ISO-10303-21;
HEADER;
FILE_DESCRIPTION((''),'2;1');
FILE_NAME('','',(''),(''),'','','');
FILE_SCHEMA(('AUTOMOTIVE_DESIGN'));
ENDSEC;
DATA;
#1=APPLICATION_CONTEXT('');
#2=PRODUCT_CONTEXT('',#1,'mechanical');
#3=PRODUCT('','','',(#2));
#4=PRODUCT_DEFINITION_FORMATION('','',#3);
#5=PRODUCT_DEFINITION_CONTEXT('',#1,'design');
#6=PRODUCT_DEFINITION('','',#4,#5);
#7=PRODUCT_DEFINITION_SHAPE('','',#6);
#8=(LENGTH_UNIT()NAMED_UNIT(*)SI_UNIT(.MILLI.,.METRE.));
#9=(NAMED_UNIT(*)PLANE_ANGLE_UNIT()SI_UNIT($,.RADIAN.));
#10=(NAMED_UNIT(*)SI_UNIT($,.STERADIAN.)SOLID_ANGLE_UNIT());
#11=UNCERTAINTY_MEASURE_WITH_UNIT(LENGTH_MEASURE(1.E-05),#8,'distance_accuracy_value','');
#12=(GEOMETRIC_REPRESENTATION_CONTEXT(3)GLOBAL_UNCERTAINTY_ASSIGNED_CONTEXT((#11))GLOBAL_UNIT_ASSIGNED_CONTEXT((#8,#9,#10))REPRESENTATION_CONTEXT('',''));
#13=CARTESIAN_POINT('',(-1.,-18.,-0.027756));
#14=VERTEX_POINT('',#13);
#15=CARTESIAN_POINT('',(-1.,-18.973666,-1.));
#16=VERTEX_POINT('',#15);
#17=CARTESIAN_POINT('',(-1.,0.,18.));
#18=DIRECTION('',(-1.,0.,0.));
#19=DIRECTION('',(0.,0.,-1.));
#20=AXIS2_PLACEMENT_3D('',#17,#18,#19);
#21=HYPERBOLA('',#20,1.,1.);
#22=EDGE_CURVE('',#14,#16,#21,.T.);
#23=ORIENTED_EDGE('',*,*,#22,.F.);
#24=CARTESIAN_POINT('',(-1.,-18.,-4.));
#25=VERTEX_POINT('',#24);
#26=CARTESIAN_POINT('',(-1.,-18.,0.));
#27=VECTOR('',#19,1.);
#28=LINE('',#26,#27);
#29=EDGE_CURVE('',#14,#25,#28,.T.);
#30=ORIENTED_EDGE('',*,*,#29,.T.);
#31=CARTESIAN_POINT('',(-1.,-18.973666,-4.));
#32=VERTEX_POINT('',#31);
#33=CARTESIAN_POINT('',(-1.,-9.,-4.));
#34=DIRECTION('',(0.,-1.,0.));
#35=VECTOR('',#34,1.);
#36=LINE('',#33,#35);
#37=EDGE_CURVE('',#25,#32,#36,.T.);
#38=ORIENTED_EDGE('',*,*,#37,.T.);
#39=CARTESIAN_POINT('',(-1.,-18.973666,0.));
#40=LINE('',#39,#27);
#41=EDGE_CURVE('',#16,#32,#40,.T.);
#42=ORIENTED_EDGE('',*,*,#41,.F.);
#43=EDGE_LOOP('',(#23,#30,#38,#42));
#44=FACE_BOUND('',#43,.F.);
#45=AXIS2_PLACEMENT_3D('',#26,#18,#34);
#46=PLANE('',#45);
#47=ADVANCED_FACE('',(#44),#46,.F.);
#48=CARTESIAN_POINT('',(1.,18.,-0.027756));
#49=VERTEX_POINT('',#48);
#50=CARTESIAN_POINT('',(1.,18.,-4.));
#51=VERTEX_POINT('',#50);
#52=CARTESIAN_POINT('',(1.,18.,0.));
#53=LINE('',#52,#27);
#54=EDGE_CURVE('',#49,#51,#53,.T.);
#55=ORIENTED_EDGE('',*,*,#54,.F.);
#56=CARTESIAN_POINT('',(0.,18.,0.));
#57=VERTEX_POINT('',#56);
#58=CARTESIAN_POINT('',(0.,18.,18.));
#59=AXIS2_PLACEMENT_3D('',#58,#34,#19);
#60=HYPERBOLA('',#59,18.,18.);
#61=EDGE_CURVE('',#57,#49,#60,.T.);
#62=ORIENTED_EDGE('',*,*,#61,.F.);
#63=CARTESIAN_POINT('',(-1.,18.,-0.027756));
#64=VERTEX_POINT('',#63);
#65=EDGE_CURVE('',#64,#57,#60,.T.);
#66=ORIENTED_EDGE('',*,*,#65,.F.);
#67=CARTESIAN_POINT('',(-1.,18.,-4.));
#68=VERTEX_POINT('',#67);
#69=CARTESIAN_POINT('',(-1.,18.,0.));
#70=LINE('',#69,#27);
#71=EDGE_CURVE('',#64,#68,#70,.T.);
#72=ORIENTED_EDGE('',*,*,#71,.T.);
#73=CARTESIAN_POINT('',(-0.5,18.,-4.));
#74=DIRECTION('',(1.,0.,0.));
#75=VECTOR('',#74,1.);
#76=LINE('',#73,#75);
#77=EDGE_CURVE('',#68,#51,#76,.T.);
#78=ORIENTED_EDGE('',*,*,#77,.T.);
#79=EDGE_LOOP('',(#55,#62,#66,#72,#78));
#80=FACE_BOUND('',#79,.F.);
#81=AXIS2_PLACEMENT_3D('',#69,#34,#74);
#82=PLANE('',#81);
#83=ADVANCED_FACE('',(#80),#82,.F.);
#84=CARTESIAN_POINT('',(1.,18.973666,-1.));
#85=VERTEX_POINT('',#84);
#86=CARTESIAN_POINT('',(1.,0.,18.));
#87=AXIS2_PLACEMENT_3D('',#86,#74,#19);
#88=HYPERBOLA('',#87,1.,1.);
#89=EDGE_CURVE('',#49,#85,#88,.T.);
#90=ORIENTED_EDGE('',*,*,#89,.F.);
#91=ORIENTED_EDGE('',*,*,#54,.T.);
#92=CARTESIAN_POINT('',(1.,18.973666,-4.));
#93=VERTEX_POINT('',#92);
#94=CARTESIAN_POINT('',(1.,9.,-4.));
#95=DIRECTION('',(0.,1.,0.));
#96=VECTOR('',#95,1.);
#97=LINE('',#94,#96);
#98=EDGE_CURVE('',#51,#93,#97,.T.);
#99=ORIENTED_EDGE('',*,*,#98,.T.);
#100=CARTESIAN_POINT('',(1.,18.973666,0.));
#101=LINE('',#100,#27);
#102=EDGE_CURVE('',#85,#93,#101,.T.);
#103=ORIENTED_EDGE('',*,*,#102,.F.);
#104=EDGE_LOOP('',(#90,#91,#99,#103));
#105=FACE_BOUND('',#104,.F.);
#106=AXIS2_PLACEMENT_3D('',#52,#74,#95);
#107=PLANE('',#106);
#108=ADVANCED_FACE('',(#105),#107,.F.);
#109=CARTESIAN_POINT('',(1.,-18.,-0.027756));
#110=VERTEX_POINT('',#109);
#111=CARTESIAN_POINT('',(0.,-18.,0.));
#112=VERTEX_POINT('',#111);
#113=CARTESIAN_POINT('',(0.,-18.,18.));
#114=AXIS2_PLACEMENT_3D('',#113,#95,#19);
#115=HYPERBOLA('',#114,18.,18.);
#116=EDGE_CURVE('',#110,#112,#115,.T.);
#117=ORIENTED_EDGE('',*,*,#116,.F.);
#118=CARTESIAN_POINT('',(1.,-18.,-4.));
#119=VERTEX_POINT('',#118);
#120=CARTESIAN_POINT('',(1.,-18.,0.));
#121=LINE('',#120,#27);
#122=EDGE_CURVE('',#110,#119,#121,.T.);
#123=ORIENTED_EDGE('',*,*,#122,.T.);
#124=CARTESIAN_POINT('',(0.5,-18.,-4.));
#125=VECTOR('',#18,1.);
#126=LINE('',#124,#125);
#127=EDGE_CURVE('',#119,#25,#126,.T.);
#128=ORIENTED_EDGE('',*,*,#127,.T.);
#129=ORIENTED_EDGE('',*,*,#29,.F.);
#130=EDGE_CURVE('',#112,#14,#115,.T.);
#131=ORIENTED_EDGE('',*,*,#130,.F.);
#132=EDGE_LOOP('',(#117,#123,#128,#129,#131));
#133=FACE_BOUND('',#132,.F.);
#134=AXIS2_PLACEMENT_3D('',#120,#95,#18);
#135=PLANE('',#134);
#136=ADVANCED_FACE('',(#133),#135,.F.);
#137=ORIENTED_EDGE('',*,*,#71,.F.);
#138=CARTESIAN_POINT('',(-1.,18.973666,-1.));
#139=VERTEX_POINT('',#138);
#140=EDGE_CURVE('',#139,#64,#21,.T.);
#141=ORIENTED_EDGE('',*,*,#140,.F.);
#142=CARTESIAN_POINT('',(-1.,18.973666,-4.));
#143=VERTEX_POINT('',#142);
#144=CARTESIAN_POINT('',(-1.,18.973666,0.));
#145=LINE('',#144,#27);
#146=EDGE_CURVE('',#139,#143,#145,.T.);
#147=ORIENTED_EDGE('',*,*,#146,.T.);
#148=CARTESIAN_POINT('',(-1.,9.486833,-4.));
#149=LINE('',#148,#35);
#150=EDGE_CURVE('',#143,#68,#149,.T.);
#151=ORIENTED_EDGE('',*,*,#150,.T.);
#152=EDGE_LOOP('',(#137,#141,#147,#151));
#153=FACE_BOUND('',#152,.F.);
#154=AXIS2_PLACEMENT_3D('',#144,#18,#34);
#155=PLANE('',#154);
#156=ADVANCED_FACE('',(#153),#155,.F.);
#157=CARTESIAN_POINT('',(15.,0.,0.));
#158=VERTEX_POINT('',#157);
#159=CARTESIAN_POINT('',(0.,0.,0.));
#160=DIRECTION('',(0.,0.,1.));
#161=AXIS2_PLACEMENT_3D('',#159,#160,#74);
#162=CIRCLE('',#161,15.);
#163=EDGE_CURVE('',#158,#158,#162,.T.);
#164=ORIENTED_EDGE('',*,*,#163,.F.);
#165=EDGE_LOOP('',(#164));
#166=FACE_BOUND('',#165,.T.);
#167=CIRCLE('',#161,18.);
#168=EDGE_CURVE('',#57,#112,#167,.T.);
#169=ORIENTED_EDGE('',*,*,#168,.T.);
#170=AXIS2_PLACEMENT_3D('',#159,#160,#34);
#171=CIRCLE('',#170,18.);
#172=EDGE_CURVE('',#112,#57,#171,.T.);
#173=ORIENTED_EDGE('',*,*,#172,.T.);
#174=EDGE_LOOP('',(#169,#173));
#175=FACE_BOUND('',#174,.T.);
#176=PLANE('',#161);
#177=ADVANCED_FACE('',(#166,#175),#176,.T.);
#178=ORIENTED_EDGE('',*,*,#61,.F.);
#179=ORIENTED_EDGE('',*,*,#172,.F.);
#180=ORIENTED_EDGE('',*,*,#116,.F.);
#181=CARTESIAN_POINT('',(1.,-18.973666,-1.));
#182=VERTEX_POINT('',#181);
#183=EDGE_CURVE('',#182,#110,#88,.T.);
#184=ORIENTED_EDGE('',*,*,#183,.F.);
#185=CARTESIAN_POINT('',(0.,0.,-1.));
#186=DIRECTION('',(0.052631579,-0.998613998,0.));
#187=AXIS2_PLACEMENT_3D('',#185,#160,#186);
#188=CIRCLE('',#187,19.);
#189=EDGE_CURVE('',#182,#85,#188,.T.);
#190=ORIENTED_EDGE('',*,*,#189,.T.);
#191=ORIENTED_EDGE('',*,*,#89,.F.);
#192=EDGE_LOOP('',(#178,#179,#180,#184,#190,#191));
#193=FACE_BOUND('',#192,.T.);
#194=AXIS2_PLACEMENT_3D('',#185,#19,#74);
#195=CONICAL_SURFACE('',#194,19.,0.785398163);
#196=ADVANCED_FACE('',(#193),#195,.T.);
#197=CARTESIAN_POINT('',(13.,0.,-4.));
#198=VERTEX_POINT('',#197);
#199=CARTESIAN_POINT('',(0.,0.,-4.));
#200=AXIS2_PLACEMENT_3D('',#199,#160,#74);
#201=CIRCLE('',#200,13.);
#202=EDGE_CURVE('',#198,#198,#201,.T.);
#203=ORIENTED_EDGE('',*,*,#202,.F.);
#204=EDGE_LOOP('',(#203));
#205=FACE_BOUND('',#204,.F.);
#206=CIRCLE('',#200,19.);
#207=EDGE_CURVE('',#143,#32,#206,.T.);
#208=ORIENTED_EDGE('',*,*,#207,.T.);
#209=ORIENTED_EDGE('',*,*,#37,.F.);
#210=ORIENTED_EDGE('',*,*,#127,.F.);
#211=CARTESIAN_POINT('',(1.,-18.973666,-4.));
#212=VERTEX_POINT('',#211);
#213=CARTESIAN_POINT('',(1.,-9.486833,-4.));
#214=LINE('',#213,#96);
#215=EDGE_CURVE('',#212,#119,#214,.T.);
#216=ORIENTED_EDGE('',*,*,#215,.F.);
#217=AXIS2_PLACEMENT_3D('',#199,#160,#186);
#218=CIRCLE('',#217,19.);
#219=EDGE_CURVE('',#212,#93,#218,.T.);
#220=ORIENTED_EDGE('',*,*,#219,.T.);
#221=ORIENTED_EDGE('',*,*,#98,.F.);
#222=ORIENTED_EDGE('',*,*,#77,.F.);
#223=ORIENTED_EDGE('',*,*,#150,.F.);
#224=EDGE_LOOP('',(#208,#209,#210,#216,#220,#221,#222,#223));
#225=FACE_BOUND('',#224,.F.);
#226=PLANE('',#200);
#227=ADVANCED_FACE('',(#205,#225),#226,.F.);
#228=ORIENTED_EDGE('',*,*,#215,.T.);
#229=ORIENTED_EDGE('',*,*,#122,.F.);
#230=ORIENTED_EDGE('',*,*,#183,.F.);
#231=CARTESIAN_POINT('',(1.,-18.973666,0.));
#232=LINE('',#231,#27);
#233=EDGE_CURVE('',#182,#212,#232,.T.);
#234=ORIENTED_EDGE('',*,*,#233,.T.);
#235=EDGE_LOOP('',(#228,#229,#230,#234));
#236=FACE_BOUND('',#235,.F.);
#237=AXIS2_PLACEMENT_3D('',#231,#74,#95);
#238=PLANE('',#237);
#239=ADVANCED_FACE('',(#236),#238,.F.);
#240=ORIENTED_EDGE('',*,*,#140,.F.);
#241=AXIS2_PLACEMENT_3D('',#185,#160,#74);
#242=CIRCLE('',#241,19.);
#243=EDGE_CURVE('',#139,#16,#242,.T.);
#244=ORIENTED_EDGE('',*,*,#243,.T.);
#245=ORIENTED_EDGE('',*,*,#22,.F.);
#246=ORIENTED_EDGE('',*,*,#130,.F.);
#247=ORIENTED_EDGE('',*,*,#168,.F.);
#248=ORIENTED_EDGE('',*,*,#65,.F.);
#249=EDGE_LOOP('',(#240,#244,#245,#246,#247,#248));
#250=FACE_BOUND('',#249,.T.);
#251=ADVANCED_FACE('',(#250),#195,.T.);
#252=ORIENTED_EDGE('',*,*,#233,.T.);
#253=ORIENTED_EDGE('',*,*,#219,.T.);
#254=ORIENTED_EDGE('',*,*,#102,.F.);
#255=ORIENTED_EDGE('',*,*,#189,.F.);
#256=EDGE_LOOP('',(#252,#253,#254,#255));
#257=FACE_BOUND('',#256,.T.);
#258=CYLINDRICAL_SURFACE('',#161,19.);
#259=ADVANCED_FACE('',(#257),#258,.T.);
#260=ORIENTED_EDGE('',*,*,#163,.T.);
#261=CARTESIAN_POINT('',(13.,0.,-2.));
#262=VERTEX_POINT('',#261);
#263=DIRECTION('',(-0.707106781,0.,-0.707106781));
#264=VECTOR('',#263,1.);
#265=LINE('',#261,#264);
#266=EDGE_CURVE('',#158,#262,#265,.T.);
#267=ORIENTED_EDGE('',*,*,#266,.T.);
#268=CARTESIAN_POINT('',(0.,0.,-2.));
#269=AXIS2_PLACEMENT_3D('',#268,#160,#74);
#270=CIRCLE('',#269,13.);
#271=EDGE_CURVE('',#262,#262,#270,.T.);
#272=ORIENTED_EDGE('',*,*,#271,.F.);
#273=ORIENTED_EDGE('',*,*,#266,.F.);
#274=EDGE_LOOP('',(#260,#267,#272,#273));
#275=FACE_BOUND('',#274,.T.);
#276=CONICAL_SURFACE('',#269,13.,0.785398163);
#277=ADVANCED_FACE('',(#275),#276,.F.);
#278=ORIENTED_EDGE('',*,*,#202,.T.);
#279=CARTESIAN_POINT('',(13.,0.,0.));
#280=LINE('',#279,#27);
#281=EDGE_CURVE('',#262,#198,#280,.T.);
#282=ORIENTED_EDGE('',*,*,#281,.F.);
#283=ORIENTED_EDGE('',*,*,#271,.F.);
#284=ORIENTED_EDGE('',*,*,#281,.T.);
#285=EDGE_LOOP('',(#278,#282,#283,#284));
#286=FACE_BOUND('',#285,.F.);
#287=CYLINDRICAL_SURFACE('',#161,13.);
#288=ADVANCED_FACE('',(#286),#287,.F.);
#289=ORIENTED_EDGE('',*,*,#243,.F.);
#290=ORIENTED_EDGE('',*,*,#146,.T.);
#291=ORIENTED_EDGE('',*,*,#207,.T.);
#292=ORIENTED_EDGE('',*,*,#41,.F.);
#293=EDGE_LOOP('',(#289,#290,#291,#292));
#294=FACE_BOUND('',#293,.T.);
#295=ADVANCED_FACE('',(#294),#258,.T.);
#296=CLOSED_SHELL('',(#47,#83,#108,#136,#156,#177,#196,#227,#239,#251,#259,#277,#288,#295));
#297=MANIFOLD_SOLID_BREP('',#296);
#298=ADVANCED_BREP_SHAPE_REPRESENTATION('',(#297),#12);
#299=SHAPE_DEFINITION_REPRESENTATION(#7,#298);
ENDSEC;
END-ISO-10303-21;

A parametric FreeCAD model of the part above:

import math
import FreeCAD as App
import Part
import Sketcher
Q = App.Units.Quantity


def edges_at(feature, points):
    """Names of the edges that pass closest to the given points."""
    edges = feature.Shape.Edges
    near = lambda p: min(range(len(edges)), key=lambda i: edges[i].distToShape(Part.Vertex(*p))[0])
    return sorted({f"Edge{near(p) + 1}" for p in points})

doc = App.newDocument("Part")
body = doc.addObject("PartDesign::Body", "Body")

# Sketch on XY plane
sketch1 = doc.addObject("Sketcher::SketchObject", "Sketch")
body.addObject(sketch1)
sketch1.AttachmentSupport = (doc.XY_Plane, [""])
sketch1.MapMode = "FlatFace"
sketch1.addGeometry(Part.Circle(App.Vector(0, 0, 0), App.Vector(0, 0, 1), 19), False)
sketch1.addGeometry(Part.Circle(App.Vector(0, 0, 0), App.Vector(0, 0, 1), 13), False)
sketch1.addConstraint(Sketcher.Constraint("Coincident", 0, 3, -1, 1))
sketch1.addConstraint(Sketcher.Constraint("Coincident", 1, 3, -1, 1))
sketch1.addConstraint(Sketcher.Constraint("Diameter", 0, Q("38 mm")))
sketch1.addConstraint(Sketcher.Constraint("Diameter", 1, Q("26 mm")))
pad1 = doc.addObject("PartDesign::Pad", "Pad")
body.addObject(pad1)
pad1.Profile = sketch1
pad1.Length = 4
pad1.Reversed = True
doc.recompute()

chamfer = doc.addObject("PartDesign::Chamfer", "Chamfer")
body.addObject(chamfer)
chamfer.Base = (pad1, edges_at(pad1, [(-19, 0, 0)]))
chamfer.Size = 1
doc.recompute()

chamfer2 = doc.addObject("PartDesign::Chamfer", "Chamfer001")
body.addObject(chamfer2)
chamfer2.Base = (chamfer, edges_at(chamfer, [(-13, 0, 0)]))
chamfer2.Size = 2

# Sketch on XY plane
sketch2 = doc.addObject("Sketcher::SketchObject", "Sketch001")
body.addObject(sketch2)
sketch2.AttachmentSupport = (doc.XY_Plane, [""])
sketch2.MapMode = "FlatFace"
sketch2.addGeometry(Part.LineSegment(App.Vector(-1, 18.973666, 0), App.Vector(-1, 18, 0)), False)
sketch2.addGeometry(Part.LineSegment(App.Vector(-1, 18, 0), App.Vector(1, 18, 0)), False)
sketch2.addGeometry(Part.LineSegment(App.Vector(1, 18, 0), App.Vector(1, 18.973666, 0)), False)
sketch2.addGeometry(Part.ArcOfCircle(Part.Circle(App.Vector(0, -0.000028, 0), App.Vector(0, 0, 1), 19.000028), math.radians(86.983043), math.radians(93.016957)), False)
sketch2.addGeometry(Part.LineSegment(App.Vector(1, -18, 0), App.Vector(-1, -18, 0)), False)
sketch2.addGeometry(Part.LineSegment(App.Vector(-1, -18, 0), App.Vector(-1, -18.973666, 0)), False)
sketch2.addGeometry(Part.ArcOfCircle(Part.Circle(App.Vector(0, 0.000028, 0), App.Vector(0, 0, 1), 19.000028), math.radians(-93.016957), math.radians(-86.983043)), False)
sketch2.addGeometry(Part.LineSegment(App.Vector(1, -18.973666, 0), App.Vector(1, -18, 0)), False)
sketch2.addConstraint(Sketcher.Constraint("Coincident", 0, 2, 1, 1))
sketch2.addConstraint(Sketcher.Constraint("Coincident", 1, 2, 2, 1))
sketch2.addConstraint(Sketcher.Constraint("Coincident", 2, 2, 3, 1))
sketch2.addConstraint(Sketcher.Constraint("Coincident", 3, 2, 0, 1))
sketch2.addConstraint(Sketcher.Constraint("Coincident", 4, 2, 5, 1))
sketch2.addConstraint(Sketcher.Constraint("Coincident", 5, 2, 6, 1))
sketch2.addConstraint(Sketcher.Constraint("Coincident", 6, 2, 7, 1))
sketch2.addConstraint(Sketcher.Constraint("Coincident", 7, 2, 4, 1))
sketch2.addConstraint(Sketcher.Constraint("Vertical", 0))
sketch2.addConstraint(Sketcher.Constraint("Horizontal", 1))
sketch2.addConstraint(Sketcher.Constraint("Vertical", 2))
sketch2.addConstraint(Sketcher.Constraint("Horizontal", 4))
sketch2.addConstraint(Sketcher.Constraint("Vertical", 5))
sketch2.addConstraint(Sketcher.Constraint("Vertical", 7))
sketch2.addConstraint(Sketcher.Constraint("Equal", 3, 6))
sketch2.addConstraint(Sketcher.Constraint("Symmetric", 3, 3, 6, 3, -1, 1))
sketch2.addConstraint(Sketcher.Constraint("Symmetric", 1, 2, 4, 2, -1, 1))
sketch2.addConstraint(Sketcher.Constraint("Symmetric", 2, 2, 3, 2, -2))
sketch2.addConstraint(Sketcher.Constraint("Horizontal", 5, 2, 6, 2))
sketch2.addConstraint(Sketcher.Constraint("DistanceX", 1, 1, 1, 2, Q("2 mm")))
sketch2.addConstraint(Sketcher.Constraint("DistanceY", -1, 1, 0, 2, Q("18 mm")))
sketch2.addConstraint(Sketcher.Constraint("Radius", 3, Q("19.000028 mm")))
sketch2.addConstraint(Sketcher.Constraint("DistanceY", 0, 2, 0, 1, Q("0.973666 mm")))
pocket1 = doc.addObject("PartDesign::Pocket", "Pocket")
body.addObject(pocket1)
pocket1.Profile = sketch2
pocket1.Type = "ThroughAll"

doc.recompute()
